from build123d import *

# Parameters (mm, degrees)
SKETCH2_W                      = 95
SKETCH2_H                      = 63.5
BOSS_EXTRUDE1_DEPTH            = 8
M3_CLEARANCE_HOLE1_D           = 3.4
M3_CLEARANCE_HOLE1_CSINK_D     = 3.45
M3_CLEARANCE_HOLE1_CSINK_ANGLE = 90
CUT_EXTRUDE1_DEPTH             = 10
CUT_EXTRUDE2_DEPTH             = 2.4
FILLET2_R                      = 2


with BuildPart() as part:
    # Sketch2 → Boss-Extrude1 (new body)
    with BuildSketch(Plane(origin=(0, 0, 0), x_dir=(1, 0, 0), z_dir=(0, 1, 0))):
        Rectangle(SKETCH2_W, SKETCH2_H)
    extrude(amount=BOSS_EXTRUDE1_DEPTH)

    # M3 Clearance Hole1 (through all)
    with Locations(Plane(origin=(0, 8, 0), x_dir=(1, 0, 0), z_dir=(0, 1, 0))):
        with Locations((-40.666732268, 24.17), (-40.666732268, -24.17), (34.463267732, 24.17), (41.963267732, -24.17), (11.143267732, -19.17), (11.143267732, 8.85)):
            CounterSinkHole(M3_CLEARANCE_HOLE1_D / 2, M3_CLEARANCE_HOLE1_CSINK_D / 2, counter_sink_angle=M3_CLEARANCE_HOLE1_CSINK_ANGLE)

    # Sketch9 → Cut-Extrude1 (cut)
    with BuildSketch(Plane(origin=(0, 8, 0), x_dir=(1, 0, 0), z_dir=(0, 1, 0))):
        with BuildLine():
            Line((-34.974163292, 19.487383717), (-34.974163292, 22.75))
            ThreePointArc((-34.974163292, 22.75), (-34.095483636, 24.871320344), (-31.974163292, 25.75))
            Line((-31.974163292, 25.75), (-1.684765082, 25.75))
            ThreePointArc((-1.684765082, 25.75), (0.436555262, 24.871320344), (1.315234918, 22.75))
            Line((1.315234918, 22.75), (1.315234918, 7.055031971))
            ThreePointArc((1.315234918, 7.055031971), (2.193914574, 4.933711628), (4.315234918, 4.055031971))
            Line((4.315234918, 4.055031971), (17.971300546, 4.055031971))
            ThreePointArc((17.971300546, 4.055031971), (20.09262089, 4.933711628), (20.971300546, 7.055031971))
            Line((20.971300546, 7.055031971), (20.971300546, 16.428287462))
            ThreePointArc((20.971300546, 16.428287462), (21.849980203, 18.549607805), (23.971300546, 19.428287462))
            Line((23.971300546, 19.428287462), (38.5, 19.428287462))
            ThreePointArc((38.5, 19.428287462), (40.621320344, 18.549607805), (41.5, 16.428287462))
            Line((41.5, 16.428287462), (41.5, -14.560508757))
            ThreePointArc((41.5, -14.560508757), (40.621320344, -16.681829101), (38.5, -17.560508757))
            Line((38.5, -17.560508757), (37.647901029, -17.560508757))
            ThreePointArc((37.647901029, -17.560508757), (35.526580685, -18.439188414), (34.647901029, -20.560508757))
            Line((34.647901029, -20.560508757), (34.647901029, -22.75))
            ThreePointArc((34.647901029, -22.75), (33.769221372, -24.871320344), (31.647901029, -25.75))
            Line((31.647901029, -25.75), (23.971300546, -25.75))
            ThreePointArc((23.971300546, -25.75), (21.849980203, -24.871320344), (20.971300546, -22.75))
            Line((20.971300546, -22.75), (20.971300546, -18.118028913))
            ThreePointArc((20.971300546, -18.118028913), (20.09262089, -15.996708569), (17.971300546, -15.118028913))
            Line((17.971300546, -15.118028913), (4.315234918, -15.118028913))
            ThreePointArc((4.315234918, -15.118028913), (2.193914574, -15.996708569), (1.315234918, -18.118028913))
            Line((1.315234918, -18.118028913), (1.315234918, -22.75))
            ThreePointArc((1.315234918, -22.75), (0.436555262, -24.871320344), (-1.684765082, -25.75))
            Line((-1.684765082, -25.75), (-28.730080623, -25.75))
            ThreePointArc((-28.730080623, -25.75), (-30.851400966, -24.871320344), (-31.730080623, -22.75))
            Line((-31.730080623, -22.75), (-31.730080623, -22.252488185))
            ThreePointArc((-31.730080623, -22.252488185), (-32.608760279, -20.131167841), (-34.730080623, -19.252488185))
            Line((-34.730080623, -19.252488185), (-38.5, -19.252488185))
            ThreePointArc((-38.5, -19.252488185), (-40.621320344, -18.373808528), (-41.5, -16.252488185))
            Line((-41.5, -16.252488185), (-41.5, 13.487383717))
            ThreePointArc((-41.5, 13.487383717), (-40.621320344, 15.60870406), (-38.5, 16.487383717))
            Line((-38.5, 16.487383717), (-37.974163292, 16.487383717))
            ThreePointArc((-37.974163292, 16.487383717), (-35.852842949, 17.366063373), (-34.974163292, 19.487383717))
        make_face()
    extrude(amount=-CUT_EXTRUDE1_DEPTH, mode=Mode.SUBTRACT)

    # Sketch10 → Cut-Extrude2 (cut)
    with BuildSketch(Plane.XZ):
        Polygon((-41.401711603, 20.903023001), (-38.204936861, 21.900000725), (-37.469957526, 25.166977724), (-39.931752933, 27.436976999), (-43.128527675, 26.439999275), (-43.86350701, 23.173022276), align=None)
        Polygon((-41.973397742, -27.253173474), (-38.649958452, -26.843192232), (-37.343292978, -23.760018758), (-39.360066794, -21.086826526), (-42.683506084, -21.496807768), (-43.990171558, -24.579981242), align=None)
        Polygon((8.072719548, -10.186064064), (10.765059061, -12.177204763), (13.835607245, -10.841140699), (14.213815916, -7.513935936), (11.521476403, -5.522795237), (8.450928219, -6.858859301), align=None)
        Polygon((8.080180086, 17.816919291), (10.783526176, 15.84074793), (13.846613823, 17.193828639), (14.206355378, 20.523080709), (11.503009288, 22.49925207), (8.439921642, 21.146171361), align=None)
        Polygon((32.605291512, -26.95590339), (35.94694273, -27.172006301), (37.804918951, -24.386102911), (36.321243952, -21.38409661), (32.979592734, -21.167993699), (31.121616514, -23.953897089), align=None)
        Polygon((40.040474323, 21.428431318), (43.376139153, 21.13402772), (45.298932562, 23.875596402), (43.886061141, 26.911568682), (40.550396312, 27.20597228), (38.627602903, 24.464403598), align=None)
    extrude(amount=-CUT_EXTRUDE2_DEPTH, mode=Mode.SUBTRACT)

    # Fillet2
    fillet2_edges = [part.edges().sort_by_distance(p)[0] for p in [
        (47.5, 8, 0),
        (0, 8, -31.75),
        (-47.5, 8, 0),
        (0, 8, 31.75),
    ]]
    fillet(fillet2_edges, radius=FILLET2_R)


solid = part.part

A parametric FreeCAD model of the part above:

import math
import FreeCAD as App
import Part
import Sketcher
Q = App.Units.Quantity


def edges_at(feature, points):
    """Names of the edges that pass closest to the given points."""
    edges = feature.Shape.Edges
    near = lambda p: min(range(len(edges)), key=lambda i: edges[i].distToShape(Part.Vertex(*p))[0])
    return sorted({f"Edge{near(p) + 1}" for p in points})

doc = App.newDocument("Part")
params = doc.addObject("Spreadsheet::Sheet", "Params")
for row, (alias, value) in enumerate([
    ("sketch1_width", "95 mm"),
    ("sketch1_height", "63.5 mm"),
    ("pad1_length", "8 mm"),
    ("sketch2_diameter", "3.4 mm"),
    ("hole_diameter", "3.4 mm"),
    ("hole_csink_diameter", "3.45 mm"),
    ("sketch3_radius", "3 mm"),
    ("pocket1_length", "10 mm"),
    ("pocket2_length", "2.4 mm"),
    ("fillet_radius", "2 mm"),
], start=1):
    params.set(f"A{row}", alias)
    params.set(f"B{row}", "=" + value)
    params.setAlias(f"B{row}", alias)

body = doc.addObject("PartDesign::Body", "Body")

# Sketch on XZ plane
sketch1 = doc.addObject("Sketcher::SketchObject", "Sketch")
body.addObject(sketch1)
sketch1.AttachmentSupport = (doc.XZ_Plane, [""])
sketch1.MapMode = "FlatFace"
sketch1.addGeometry(Part.LineSegment(App.Vector(-48, -32, 0), App.Vector(-48, 32, 0)), False)
sketch1.addGeometry(Part.LineSegment(App.Vector(-48, 32, 0), App.Vector(48, 32, 0)), False)
sketch1.addGeometry(Part.LineSegment(App.Vector(48, 32, 0), App.Vector(48, -32, 0)), False)
sketch1.addGeometry(Part.LineSegment(App.Vector(48, -32, 0), App.Vector(-48, -32, 0)), False)
sketch1.addConstraint(Sketcher.Constraint("Coincident", 0, 2, 1, 1))
sketch1.addConstraint(Sketcher.Constraint("Coincident", 1, 2, 2, 1))
sketch1.addConstraint(Sketcher.Constraint("Coincident", 2, 2, 3, 1))
sketch1.addConstraint(Sketcher.Constraint("Coincident", 3, 2, 0, 1))
sketch1.addConstraint(Sketcher.Constraint("Vertical", 0))
sketch1.addConstraint(Sketcher.Constraint("Horizontal", 1))
sketch1.addConstraint(Sketcher.Constraint("Vertical", 2))
sketch1.addConstraint(Sketcher.Constraint("Horizontal", 3))
sketch1.addConstraint(Sketcher.Constraint("Symmetric", 0, 2, 2, 2, -1, 1))
sketch1.addConstraint(Sketcher.Constraint("DistanceX", 1, 1, 1, 2, Q("95 mm")))
sketch1.addConstraint(Sketcher.Constraint("DistanceY", 0, 1, 0, 2, Q("63.5 mm")))
sketch1.setExpression("Constraints[9]", "Params.sketch1_width")
sketch1.setExpression("Constraints[10]", "Params.sketch1_height")
pad1 = doc.addObject("PartDesign::Pad", "Pad")
body.addObject(pad1)
pad1.Profile = sketch1
pad1.setExpression("Length", "Params.pad1_length")
pad1.Reversed = True

# Sketch on XZ plane
sketch2 = doc.addObject("Sketcher::SketchObject", "Sketch001")
body.addObject(sketch2)
sketch2.AttachmentSupport = (doc.XZ_Plane, [""])
sketch2.MapMode = "FlatFace"
sketch2.AttachmentOffset = App.Placement(App.Vector(0, 0, -8), App.Rotation())
sketch2.addGeometry(Part.Circle(App.Vector(-40.7, -24.2, 0), App.Vector(0, 0, 1), 1.7), False)
sketch2.addGeometry(Part.Circle(App.Vector(-40.7, 24.2, 0), App.Vector(0, 0, 1), 1.7), False)
sketch2.addGeometry(Part.Circle(App.Vector(34.5, -24.2, 0), App.Vector(0, 0, 1), 1.7), False)
sketch2.addGeometry(Part.Circle(App.Vector(42, 24.2, 0), App.Vector(0, 0, 1), 1.7), False)
sketch2.addGeometry(Part.Circle(App.Vector(11.1, 19.2, 0), App.Vector(0, 0, 1), 1.7), False)
sketch2.addGeometry(Part.Circle(App.Vector(11.1, -8.8, 0), App.Vector(0, 0, 1), 1.7), False)
sketch2.addConstraint(Sketcher.Constraint("Equal", 0, 1))
sketch2.addConstraint(Sketcher.Constraint("Equal", 1, 2))
sketch2.addConstraint(Sketcher.Constraint("Equal", 2, 3))
sketch2.addConstraint(Sketcher.Constraint("Equal", 3, 4))
sketch2.addConstraint(Sketcher.Constraint("Equal", 4, 5))
sketch2.addConstraint(Sketcher.Constraint("Symmetric", 0, 3, 1, 3, -1))
sketch2.addConstraint(Sketcher.Constraint("Horizontal", 0, 3, 2, 3))
sketch2.addConstraint(Sketcher.Constraint("Horizontal", 1, 3, 3, 3))
sketch2.addConstraint(Sketcher.Constraint("Vertical", 4, 3, 5, 3))
sketch2.addConstraint(Sketcher.Constraint("Diameter", 0, Q("3.4 mm")))
sketch2.addConstraint(Sketcher.Constraint("DistanceY", 4, 3, 3, 3, Q("5 mm")))
sketch2.addConstraint(Sketcher.Constraint("DistanceX", 2, 3, 3, 3, Q("7.5 mm")))
sketch2.addConstraint(Sketcher.Constraint("DistanceY", 0, 3, -1, 1, Q("24.17 mm")))
sketch2.addConstraint(Sketcher.Constraint("DistanceY", 5, 3, -1, 1, Q("8.85 mm")))
sketch2.addConstraint(Sketcher.Constraint("DistanceX", 0, 3, 2, 3, Q("75.13 mm")))
sketch2.addConstraint(Sketcher.Constraint("DistanceX", 4, 3, 3, 3, Q("30.82 mm")))
sketch2.addConstraint(Sketcher.Constraint("DistanceX", 0, 3, -1, 1, Q("40.666732 mm")))
sketch2.setExpression("Constraints[9]", "Params.sketch2_diameter")
doc.recompute()
hole = doc.addObject("PartDesign::Hole", "Hole")
body.addObject(hole)
hole.Profile = sketch2
hole.ThreadType = "None"
hole.setExpression("Diameter", "Params.hole_diameter")
hole.DepthType = "ThroughAll"
hole.HoleCutType = "Countersink"
hole.setExpression("HoleCutDiameter", "Params.hole_csink_diameter")
hole.HoleCutCountersinkAngle = 90
hole.Reversed = True

# Sketch on XZ plane
sketch3 = doc.addObject("Sketcher::SketchObject", "Sketch002")
body.addObject(sketch3)
sketch3.AttachmentSupport = (doc.XZ_Plane, [""])
sketch3.MapMode = "FlatFace"
sketch3.AttachmentOffset = App.Placement(App.Vector(0, 0, -8), App.Rotation())
sketch3.addGeometry(Part.LineSegment(App.Vector(-34.97, -22.75, 0), App.Vector(-34.97, -19.49, 0)), False)
sketch3.addGeometry(Part.ArcOfCircle(Part.Circle(App.Vector(-37.97, -19.49, 0), App.Vector(0, 0, 1), 3), math.radians(0), math.radians(90)), False)
sketch3.addGeometry(Part.LineSegment(App.Vector(-37.97, -16.49, 0), App.Vector(-38.5, -16.49, 0)), False)
sketch3.addGeometry(Part.ArcOfCircle(Part.Circle(App.Vector(-38.5, -13.49, 0), App.Vector(0, 0, 1), 3), math.radians(180), math.radians(270)), False)
sketch3.addGeometry(Part.LineSegment(App.Vector(-41.5, -13.49, 0), App.Vector(-41.5, 16.25, 0)), False)
sketch3.addGeometry(Part.ArcOfCircle(Part.Circle(App.Vector(-38.5, 16.25, 0), App.Vector(0, 0, 1), 3), math.radians(90), math.radians(180)), False)
sketch3.addGeometry(Part.LineSegment(App.Vector(-38.5, 19.25, 0), App.Vector(-34.73, 19.25, 0)), False)
sketch3.addGeometry(Part.ArcOfCircle(Part.Circle(App.Vector(-34.73, 22.25, 0), App.Vector(0, 0, 1), 3), math.radians(-90), math.radians(0)), False)
sketch3.addGeometry(Part.LineSegment(App.Vector(-31.73, 22.25, 0), App.Vector(-31.73, 22.75, 0)), False)
sketch3.addGeometry(Part.ArcOfCircle(Part.Circle(App.Vector(-28.73, 22.75, 0), App.Vector(0, 0, 1), 3), math.radians(90), math.radians(180)), False)
sketch3.addGeometry(Part.LineSegment(App.Vector(-28.73, 25.75, 0), App.Vector(-1.68, 25.75, 0)), False)
sketch3.addGeometry(Part.ArcOfCircle(Part.Circle(App.Vector(-1.68, 22.75, 0), App.Vector(0, 0, 1), 3), math.radians(0), math.radians(90)), False)
sketch3.addGeometry(Part.LineSegment(App.Vector(1.32, 22.75, 0), App.Vector(1.32, 18.12, 0)), False)
sketch3.addGeometry(Part.ArcOfCircle(Part.Circle(App.Vector(4.32, 18.12, 0), App.Vector(0, 0, 1), 3), math.radians(180), math.radians(270)), False)
sketch3.addGeometry(Part.LineSegment(App.Vector(4.32, 15.12, 0), App.Vector(17.97, 15.12, 0)), False)
sketch3.addGeometry(Part.ArcOfCircle(Part.Circle(App.Vector(17.97, 18.12, 0), App.Vector(0, 0, 1), 3), math.radians(-90), math.radians(0)), False)
sketch3.addGeometry(Part.LineSegment(App.Vector(20.97, 18.12, 0), App.Vector(20.97, 22.75, 0)), False)
sketch3.addGeometry(Part.ArcOfCircle(Part.Circle(App.Vector(23.97, 22.75, 0), App.Vector(0, 0, 1), 3), math.radians(90), math.radians(180)), False)
sketch3.addGeometry(Part.LineSegment(App.Vector(23.97, 25.75, 0), App.Vector(31.65, 25.75, 0)), False)
sketch3.addGeometry(Part.ArcOfCircle(Part.Circle(App.Vector(31.65, 22.75, 0), App.Vector(0, 0, 1), 3), math.radians(0), math.radians(90)), False)
sketch3.addGeometry(Part.LineSegment(App.Vector(34.65, 22.75, 0), App.Vector(34.65, 20.56, 0)), False)
sketch3.addGeometry(Part.ArcOfCircle(Part.Circle(App.Vector(37.65, 20.56, 0), App.Vector(0, 0, 1), 3), math.radians(180), math.radians(270)), False)
sketch3.addGeometry(Part.LineSegment(App.Vector(37.65, 17.56, 0), App.Vector(38.5, 17.56, 0)), False)
sketch3.addGeometry(Part.ArcOfCircle(Part.Circle(App.Vector(38.5, 14.56, 0), App.Vector(0, 0, 1), 3), math.radians(0), math.radians(90)), False)
sketch3.addGeometry(Part.LineSegment(App.Vector(41.5, 14.56, 0), App.Vector(41.5, -16.43, 0)), False)
sketch3.addGeometry(Part.ArcOfCircle(Part.Circle(App.Vector(38.5, -16.43, 0), App.Vector(0, 0, 1), 3), math.radians(-90), math.radians(0)), False)
sketch3.addGeometry(Part.LineSegment(App.Vector(38.5, -19.43, 0), App.Vector(23.97, -19.43, 0)), False)
sketch3.addGeometry(Part.ArcOfCircle(Part.Circle(App.Vector(23.97, -16.43, 0), App.Vector(0, 0, 1), 3), math.radians(-180), math.radians(-90)), False)
sketch3.addGeometry(Part.LineSegment(App.Vector(20.97, -16.43, 0), App.Vector(20.97, -7.06, 0)), False)
sketch3.addGeometry(Part.ArcOfCircle(Part.Circle(App.Vector(17.97, -7.06, 0), App.Vector(0, 0, 1), 3), math.radians(0), math.radians(90)), False)
sketch3.addGeometry(Part.LineSegment(App.Vector(17.97, -4.06, 0), App.Vector(4.32, -4.06, 0)), False)
sketch3.addGeometry(Part.ArcOfCircle(Part.Circle(App.Vector(4.32, -7.06, 0), App.Vector(0, 0, 1), 3), math.radians(90), math.radians(180)), False)
sketch3.addGeometry(Part.LineSegment(App.Vector(1.32, -7.06, 0), App.Vector(1.32, -22.75, 0)), False)
sketch3.addGeometry(Part.ArcOfCircle(Part.Circle(App.Vector(-1.68, -22.75, 0), App.Vector(0, 0, 1), 3), math.radians(-90), math.radians(0)), False)
sketch3.addGeometry(Part.LineSegment(App.Vector(-1.68, -25.75, 0), App.Vector(-31.97, -25.75, 0)), False)
sketch3.addGeometry(Part.ArcOfCircle(Part.Circle(App.Vector(-31.97, -22.75, 0), App.Vector(0, 0, 1), 3), math.radians(180), math.radians(270)), False)
sketch3.addConstraint(Sketcher.Constraint("Tangent", 0, 2, 1, 1))
sketch3.addConstraint(Sketcher.Constraint("Tangent", 1, 2, 2, 1))
sketch3.addConstraint(Sketcher.Constraint("Tangent", 2, 2, 3, 2))
sketch3.addConstraint(Sketcher.Constraint("Tangent", 3, 1, 4, 1))
sketch3.addConstraint(Sketcher.Constraint("Tangent", 4, 2, 5, 2))
sketch3.addConstraint(Sketcher.Constraint("Tangent", 5, 1, 6, 1))
sketch3.addConstraint(Sketcher.Constraint("Tangent", 6, 2, 7, 1))
sketch3.addConstraint(Sketcher.Constraint("Tangent", 7, 2, 8, 1))
sketch3.addConstraint(Sketcher.Constraint("Tangent", 8, 2, 9, 2))
sketch3.addConstraint(Sketcher.Constraint("Tangent", 9, 1, 10, 1))
sketch3.addConstraint(Sketcher.Constraint("Tangent", 10, 2, 11, 2))
sketch3.addConstraint(Sketcher.Constraint("Tangent", 11, 1, 12, 1))
sketch3.addConstraint(Sketcher.Constraint("Tangent", 12, 2, 13, 1))
sketch3.addConstraint(Sketcher.Constraint("Tangent", 13, 2, 14, 1))
sketch3.addConstraint(Sketcher.Constraint("Tangent", 14, 2, 15, 1))
sketch3.addConstraint(Sketcher.Constraint("Tangent", 15, 2, 16, 1))
sketch3.addConstraint(Sketcher.Constraint("Tangent", 16, 2, 17, 2))
sketch3.addConstraint(Sketcher.Constraint("Tangent", 17, 1, 18, 1))
sketch3.addConstraint(Sketcher.Constraint("Tangent", 18, 2, 19, 2))
sketch3.addConstraint(Sketcher.Constraint("Tangent", 19, 1, 20, 1))
sketch3.addConstraint(Sketcher.Constraint("Tangent", 20, 2, 21, 1))
sketch3.addConstraint(Sketcher.Constraint("Tangent", 21, 2, 22, 1))
sketch3.addConstraint(Sketcher.Constraint("Tangent", 22, 2, 23, 2))
sketch3.addConstraint(Sketcher.Constraint("Tangent", 23, 1, 24, 1))
sketch3.addConstraint(Sketcher.Constraint("Tangent", 24, 2, 25, 2))
sketch3.addConstraint(Sketcher.Constraint("Tangent", 25, 1, 26, 1))
sketch3.addConstraint(Sketcher.Constraint("Tangent", 26, 2, 27, 2))
sketch3.addConstraint(Sketcher.Constraint("Tangent", 27, 1, 28, 1))
sketch3.addConstraint(Sketcher.Constraint("Tangent", 28, 2, 29, 1))
sketch3.addConstraint(Sketcher.Constraint("Tangent", 29, 2, 30, 1))
sketch3.addConstraint(Sketcher.Constraint("Tangent", 30, 2, 31, 1))
sketch3.addConstraint(Sketcher.Constraint("Tangent", 31, 2, 32, 1))
sketch3.addConstraint(Sketcher.Constraint("Tangent", 32, 2, 33, 2))
sketch3.addConstraint(Sketcher.Constraint("Tangent", 33, 1, 34, 1))
sketch3.addConstraint(Sketcher.Constraint("Tangent", 34, 2, 35, 2))
sketch3.addConstraint(Sketcher.Constraint("Tangent", 35, 1, 0, 1))
sketch3.addConstraint(Sketcher.Constraint("Vertical", 0))
sketch3.addConstraint(Sketcher.Constraint("Horizontal", 2))
sketch3.addConstraint(Sketcher.Constraint("Vertical", 4))
sketch3.addConstraint(Sketcher.Constraint("Horizontal", 6))
sketch3.addConstraint(Sketcher.Constraint("Vertical", 8))
sketch3.addConstraint(Sketcher.Constraint("Horizontal", 10))
sketch3.addConstraint(Sketcher.Constraint("Vertical", 12))
sketch3.addConstraint(Sketcher.Constraint("Horizontal", 14))
sketch3.addConstraint(Sketcher.Constraint("Vertical", 16))
sketch3.addConstraint(Sketcher.Constraint("Horizontal", 18))
sketch3.addConstraint(Sketcher.Constraint("Vertical", 20))
sketch3.addConstraint(Sketcher.Constraint("Horizontal", 22))
sketch3.addConstraint(Sketcher.Constraint("Vertical", 24))
sketch3.addConstraint(Sketcher.Constraint("Horizontal", 26))
sketch3.addConstraint(Sketcher.Constraint("Vertical", 28))
sketch3.addConstraint(Sketcher.Constraint("Horizontal", 30))
sketch3.addConstraint(Sketcher.Constraint("Vertical", 32))
sketch3.addConstraint(Sketcher.Constraint("Horizontal", 34))
sketch3.addConstraint(Sketcher.Constraint("Equal", 1, 3))
sketch3.addConstraint(Sketcher.Constraint("Equal", 3, 5))
sketch3.addConstraint(Sketcher.Constraint("Equal", 5, 7))
sketch3.addConstraint(Sketcher.Constraint("Equal", 7, 9))
sketch3.addConstraint(Sketcher.Constraint("Equal", 9, 11))
sketch3.addConstraint(Sketcher.Constraint("Equal", 11, 13))
sketch3.addConstraint(Sketcher.Constraint("Equal", 13, 15))
sketch3.addConstraint(Sketcher.Constraint("Equal", 15, 17))
sketch3.addConstraint(Sketcher.Constraint("Equal", 17, 19))
sketch3.addConstraint(Sketcher.Constraint("Equal", 19, 21))
sketch3.addConstraint(Sketcher.Constraint("Equal", 21, 23))
sketch3.addConstraint(Sketcher.Constraint("Equal", 23, 25))
sketch3.addConstraint(Sketcher.Constraint("Equal", 25, 27))
sketch3.addConstraint(Sketcher.Constraint("Equal", 27, 29))
sketch3.addConstraint(Sketcher.Constraint("Equal", 29, 31))
sketch3.addConstraint(Sketcher.Constraint("Equal", 31, 33))
sketch3.addConstraint(Sketcher.Constraint("Equal", 33, 35))
sketch3.addConstraint(Sketcher.Constraint("Symmetric", 11, 3, 33, 3, -1))
sketch3.addConstraint(Sketcher.Constraint("Horizontal", 11, 3, 17, 3))
sketch3.addConstraint(Sketcher.Constraint("Vertical", 17, 3, 27, 3))
sketch3.addConstraint(Sketcher.Constraint("Radius", 1, Q("3 mm")))
sketch3.addConstraint(Sketcher.Constraint("DistanceX", 3, 3, -1, 1, Q("38.5 mm")))
sketch3.addConstraint(Sketcher.Constraint("DistanceX", -1, 1, 23, 3, Q("38.5 mm")))
sketch3.addConstraint(Sketcher.Constraint("DistanceY", -1, 1, 9, 3, Q("22.75 mm")))
sketch3.addConstraint(Sketcher.Constraint("DistanceX", 18, 1, 18, 2, Q("7.6766 mm")))
sketch3.addConstraint(Sketcher.Constraint("DistanceX", 22, 1, 22, 2, Q("0.852099 mm")))
sketch3.addConstraint(Sketcher.Constraint("DistanceX", 34, 2, 34, 1, Q("30.289398 mm")))
sketch3.addConstraint(Sketcher.Constraint("DistanceX", 6, 1, 6, 2, Q("3.769919 mm")))
sketch3.addConstraint(Sketcher.Constraint("DistanceY", 4, 1, 4, 2, Q("29.739872 mm")))
sketch3.addConstraint(Sketcher.Constraint("DistanceY", 8, 1, 8, 2, Q("0.497512 mm")))
sketch3.addConstraint(Sketcher.Constraint("DistanceY", 12, 2, 12, 1, Q("4.631971 mm")))
sketch3.addConstraint(Sketcher.Constraint("DistanceY", 20, 2, 20, 1, Q("2.189491 mm")))
sketch3.addConstraint(Sketcher.Constraint("DistanceY", 32, 2, 32, 1, Q("15.694968 mm")))
sketch3.addConstraint(Sketcher.Constraint("DistanceX", 2, 2, 2, 1, Q("0.525837 mm")))
sketch3.addConstraint(Sketcher.Constraint("DistanceY", 24, 2, 24, 1, Q("30.988796 mm")))
sketch3.setExpression("Constraints[74]", "Params.sketch3_radius")
pocket1 = doc.addObject("PartDesign::Pocket", "Pocket")
body.addObject(pocket1)
pocket1.Profile = sketch3
pocket1.setExpression("Length", "Params.pocket1_length")
pocket1.Reversed = True

# Sketch on XZ plane
sketch4 = doc.addObject("Sketcher::SketchObject", "Sketch003")
body.addObject(sketch4)
sketch4.AttachmentSupport = (doc.XZ_Plane, [""])
sketch4.MapMode = "FlatFace"
sketch4.addGeometry(Part.LineSegment(App.Vector(-41.4, 20.9, 0), App.Vector(-38.2, 21.9, 0)), False)
sketch4.addGeometry(Part.LineSegment(App.Vector(-38.2, 21.9, 0), App.Vector(-37.5, 25.2, 0)), False)
sketch4.addGeometry(Part.LineSegment(App.Vector(-37.5, 25.2, 0), App.Vector(-39.9, 27.4, 0)), False)
sketch4.addGeometry(Part.LineSegment(App.Vector(-39.9, 27.4, 0), App.Vector(-43.1, 26.4, 0)), False)
sketch4.addGeometry(Part.LineSegment(App.Vector(-43.1, 26.4, 0), App.Vector(-43.9, 23.2, 0)), False)
sketch4.addGeometry(Part.LineSegment(App.Vector(-43.9, 23.2, 0), App.Vector(-41.4, 20.9, 0)), False)
sketch4.addGeometry(Part.LineSegment(App.Vector(-42, -27.3, 0), App.Vector(-38.6, -26.8, 0)), False)
sketch4.addGeometry(Part.LineSegment(App.Vector(-38.6, -26.8, 0), App.Vector(-37.3, -23.8, 0)), False)
sketch4.addGeometry(Part.LineSegment(App.Vector(-37.3, -23.8, 0), App.Vector(-39.4, -21.1, 0)), False)
sketch4.addGeometry(Part.LineSegment(App.Vector(-39.4, -21.1, 0), App.Vector(-42.7, -21.5, 0)), False)
sketch4.addGeometry(Part.LineSegment(App.Vector(-42.7, -21.5, 0), App.Vector(-44, -24.6, 0)), False)
sketch4.addGeometry(Part.LineSegment(App.Vector(-44, -24.6, 0), App.Vector(-42, -27.3, 0)), False)
sketch4.addGeometry(Part.LineSegment(App.Vector(8.1, -10.2, 0), App.Vector(10.8, -12.2, 0)), False)
sketch4.addGeometry(Part.LineSegment(App.Vector(10.8, -12.2, 0), App.Vector(13.8, -10.8, 0)), False)
sketch4.addGeometry(Part.LineSegment(App.Vector(13.8, -10.8, 0), App.Vector(14.2, -7.5, 0)), False)
sketch4.addGeometry(Part.LineSegment(App.Vector(14.2, -7.5, 0), App.Vector(11.5, -5.5, 0)), False)
sketch4.addGeometry(Part.LineSegment(App.Vector(11.5, -5.5, 0), App.Vector(8.5, -6.9, 0)), False)
sketch4.addGeometry(Part.LineSegment(App.Vector(8.5, -6.9, 0), App.Vector(8.1, -10.2, 0)), False)
sketch4.addGeometry(Part.LineSegment(App.Vector(8.1, 17.8, 0), App.Vector(10.8, 15.8, 0)), False)
sketch4.addGeometry(Part.LineSegment(App.Vector(10.8, 15.8, 0), App.Vector(13.8, 17.2, 0)), False)
sketch4.addGeometry(Part.LineSegment(App.Vector(13.8, 17.2, 0), App.Vector(14.2, 20.5, 0)), False)
sketch4.addGeometry(Part.LineSegment(App.Vector(14.2, 20.5, 0), App.Vector(11.5, 22.5, 0)), False)
sketch4.addGeometry(Part.LineSegment(App.Vector(11.5, 22.5, 0), App.Vector(8.4, 21.1, 0)), False)
sketch4.addGeometry(Part.LineSegment(App.Vector(8.4, 21.1, 0), App.Vector(8.1, 17.8, 0)), False)
sketch4.addGeometry(Part.LineSegment(App.Vector(32.6, -27, 0), App.Vector(35.9, -27.2, 0)), False)
sketch4.addGeometry(Part.LineSegment(App.Vector(35.9, -27.2, 0), App.Vector(37.8, -24.4, 0)), False)
sketch4.addGeometry(Part.LineSegment(App.Vector(37.8, -24.4, 0), App.Vector(36.3, -21.4, 0)), False)
sketch4.addGeometry(Part.LineSegment(App.Vector(36.3, -21.4, 0), App.Vector(33, -21.2, 0)), False)
sketch4.addGeometry(Part.LineSegment(App.Vector(33, -21.2, 0), App.Vector(31.1, -24, 0)), False)
sketch4.addGeometry(Part.LineSegment(App.Vector(31.1, -24, 0), App.Vector(32.6, -27, 0)), False)
sketch4.addGeometry(Part.LineSegment(App.Vector(40, 21.4, 0), App.Vector(43.4, 21.1, 0)), False)
sketch4.addGeometry(Part.LineSegment(App.Vector(43.4, 21.1, 0), App.Vector(45.3, 23.9, 0)), False)
sketch4.addGeometry(Part.LineSegment(App.Vector(45.3, 23.9, 0), App.Vector(43.9, 26.9, 0)), False)
sketch4.addGeometry(Part.LineSegment(App.Vector(43.9, 26.9, 0), App.Vector(40.6, 27.2, 0)), False)
sketch4.addGeometry(Part.LineSegment(App.Vector(40.6, 27.2, 0), App.Vector(38.6, 24.5, 0)), False)
sketch4.addGeometry(Part.LineSegment(App.Vector(38.6, 24.5, 0), App.Vector(40, 21.4, 0)), False)
sketch4.addConstraint(Sketcher.Constraint("Coincident", 0, 2, 1, 1))
sketch4.addConstraint(Sketcher.Constraint("Coincident", 1, 2, 2, 1))
sketch4.addConstraint(Sketcher.Constraint("Coincident", 2, 2, 3, 1))
sketch4.addConstraint(Sketcher.Constraint("Coincident", 3, 2, 4, 1))
sketch4.addConstraint(Sketcher.Constraint("Coincident", 4, 2, 5, 1))
sketch4.addConstraint(Sketcher.Constraint("Coincident", 5, 2, 0, 1))
sketch4.addConstraint(Sketcher.Constraint("Coincident", 6, 2, 7, 1))
sketch4.addConstraint(Sketcher.Constraint("Coincident", 7, 2, 8, 1))
sketch4.addConstraint(Sketcher.Constraint("Coincident", 8, 2, 9, 1))
sketch4.addConstraint(Sketcher.Constraint("Coincident", 9, 2, 10, 1))
sketch4.addConstraint(Sketcher.Constraint("Coincident", 10, 2, 11, 1))
sketch4.addConstraint(Sketcher.Constraint("Coincident", 11, 2, 6, 1))
sketch4.addConstraint(Sketcher.Constraint("Coincident", 12, 2, 13, 1))
sketch4.addConstraint(Sketcher.Constraint("Coincident", 13, 2, 14, 1))
sketch4.addConstraint(Sketcher.Constraint("Coincident", 14, 2, 15, 1))
sketch4.addConstraint(Sketcher.Constraint("Coincident", 15, 2, 16, 1))
sketch4.addConstraint(Sketcher.Constraint("Coincident", 16, 2, 17, 1))
sketch4.addConstraint(Sketcher.Constraint("Coincident", 17, 2, 12, 1))
sketch4.addConstraint(Sketcher.Constraint("Coincident", 18, 2, 19, 1))
sketch4.addConstraint(Sketcher.Constraint("Coincident", 19, 2, 20, 1))
sketch4.addConstraint(Sketcher.Constraint("Coincident", 20, 2, 21, 1))
sketch4.addConstraint(Sketcher.Constraint("Coincident", 21, 2, 22, 1))
sketch4.addConstraint(Sketcher.Constraint("Coincident", 22, 2, 23, 1))
sketch4.addConstraint(Sketcher.Constraint("Coincident", 23, 2, 18, 1))
sketch4.addConstraint(Sketcher.Constraint("Coincident", 24, 2, 25, 1))
sketch4.addConstraint(Sketcher.Constraint("Coincident", 25, 2, 26, 1))
sketch4.addConstraint(Sketcher.Constraint("Coincident", 26, 2, 27, 1))
sketch4.addConstraint(Sketcher.Constraint("Coincident", 27, 2, 28, 1))
sketch4.addConstraint(Sketcher.Constraint("Coincident", 28, 2, 29, 1))
sketch4.addConstraint(Sketcher.Constraint("Coincident", 29, 2, 24, 1))
sketch4.addConstraint(Sketcher.Constraint("Coincident", 30, 2, 31, 1))
sketch4.addConstraint(Sketcher.Constraint("Coincident", 31, 2, 32, 1))
sketch4.addConstraint(Sketcher.Constraint("Coincident", 32, 2, 33, 1))
sketch4.addConstraint(Sketcher.Constraint("Coincident", 33, 2, 34, 1))
sketch4.addConstraint(Sketcher.Constraint("Coincident", 34, 2, 35, 1))
sketch4.addConstraint(Sketcher.Constraint("Coincident", 35, 2, 30, 1))
sketch4.addConstraint(Sketcher.Constraint("Parallel", 0, 3))
sketch4.addConstraint(Sketcher.Constraint("Parallel", 1, 4))
sketch4.addConstraint(Sketcher.Constraint("Parallel", 2, 5))
sketch4.addConstraint(Sketcher.Constraint("Parallel", 6, 9))
sketch4.addConstraint(Sketcher.Constraint("Parallel", 7, 10))
sketch4.addConstraint(Sketcher.Constraint("Parallel", 8, 11))
sketch4.addConstraint(Sketcher.Constraint("Parallel", 12, 15))
sketch4.addConstraint(Sketcher.Constraint("Parallel", 13, 16))
sketch4.addConstraint(Sketcher.Constraint("Parallel", 14, 17))
sketch4.addConstraint(Sketcher.Constraint("Parallel", 18, 21))
sketch4.addConstraint(Sketcher.Constraint("Parallel", 19, 22))
sketch4.addConstraint(Sketcher.Constraint("Parallel", 20, 23))
sketch4.addConstraint(Sketcher.Constraint("Parallel", 24, 27))
sketch4.addConstraint(Sketcher.Constraint("Parallel", 25, 28))
sketch4.addConstraint(Sketcher.Constraint("Parallel", 26, 29))
sketch4.addConstraint(Sketcher.Constraint("Parallel", 30, 33))
sketch4.addConstraint(Sketcher.Constraint("Parallel", 31, 34))
sketch4.addConstraint(Sketcher.Constraint("Parallel", 32, 35))
sketch4.addConstraint(Sketcher.Constraint("Equal", 0, 1))
sketch4.addConstraint(Sketcher.Constraint("Equal", 1, 2))
sketch4.addConstraint(Sketcher.Constraint("Equal", 2, 3))
sketch4.addConstraint(Sketcher.Constraint("Equal", 5, 6))
sketch4.addConstraint(Sketcher.Constraint("Equal", 6, 7))
sketch4.addConstraint(Sketcher.Constraint("Equal", 7, 8))
sketch4.addConstraint(Sketcher.Constraint("Equal", 8, 9))
sketch4.addConstraint(Sketcher.Constraint("Equal", 11, 12))
sketch4.addConstraint(Sketcher.Constraint("Equal", 12, 13))
sketch4.addConstraint(Sketcher.Constraint("Equal", 13, 14))
sketch4.addConstraint(Sketcher.Constraint("Equal", 14, 15))
sketch4.addConstraint(Sketcher.Constraint("Equal", 17, 18))
sketch4.addConstraint(Sketcher.Constraint("Equal", 18, 19))
sketch4.addConstraint(Sketcher.Constraint("Equal", 19, 20))
sketch4.addConstraint(Sketcher.Constraint("Equal", 20, 21))
sketch4.addConstraint(Sketcher.Constraint("Equal", 23, 24))
sketch4.addConstraint(Sketcher.Constraint("Equal", 24, 25))
sketch4.addConstraint(Sketcher.Constraint("Equal", 25, 26))
sketch4.addConstraint(Sketcher.Constraint("Equal", 26, 27))
sketch4.addConstraint(Sketcher.Constraint("Equal", 29, 30))
sketch4.addConstraint(Sketcher.Constraint("Equal", 30, 31))
sketch4.addConstraint(Sketcher.Constraint("Equal", 31, 32))
sketch4.addConstraint(Sketcher.Constraint("Equal", 32, 33))
sketch4.addConstraint(Sketcher.Constraint("DistanceY", -1, 1, 0, 2, Q("21.900001 mm")))
sketch4.addConstraint(Sketcher.Constraint("DistanceY", -1, 1, 3, 2, Q("26.439999 mm")))
sketch4.addConstraint(Sketcher.Constraint("DistanceY", 1, 2, 2, 2, Q("2.269999 mm")))
sketch4.addConstraint(Sketcher.Constraint("DistanceX", 6, 2, 1, 2, Q("1.180001 mm")))
sketch4.addConstraint(Sketcher.Constraint("DistanceX", 7, 2, 13, 2, Q("51.1789 mm")))
sketch4.addConstraint(Sketcher.Constraint("DistanceY", 24, 2, 12, 2, Q("14.994802 mm")))
sketch4.addConstraint(Sketcher.Constraint("DistanceY", 25, 2, 12, 2, Q("12.208898 mm")))
sketch4.addConstraint(Sketcher.Constraint("DistanceX", 24, 2, 26, 2, Q("0.374301 mm")))
sketch4.addConstraint(Sketcher.Constraint("DistanceY", 28, 2, 26, 2, Q("2.5698 mm")))
sketch4.addConstraint(Sketcher.Constraint("DistanceY", 19, 2, 30, 2, Q("3.940199 mm")))
sketch4.addConstraint(Sketcher.Constraint("Distance", 0, Q("3.348632 mm")))
sketch4.addConstraint(Sketcher.Constraint("DistanceX", 5, 2, -1, 1, Q("41.401712 mm")))
sketch4.addConstraint(Sketcher.Constraint("DistanceX", 6, 2, -1, 1, Q("38.649958 mm")))
sketch4.addConstraint(Sketcher.Constraint("DistanceY", 7, 2, -1, 1, Q("23.760019 mm")))
sketch4.addConstraint(Sketcher.Constraint("DistanceX", 10, 2, -1, 1, Q("43.990172 mm")))
sketch4.addConstraint(Sketcher.Constraint("DistanceY", 10, 2, -1, 1, Q("24.579981 mm")))
sketch4.addConstraint(Sketcher.Constraint("DistanceX", -1, 1, 12, 2, Q("10.765059 mm")))
sketch4.addConstraint(Sketcher.Constraint("DistanceY", 13, 2, -1, 1, Q("10.841141 mm")))
sketch4.addConstraint(Sketcher.Constraint("DistanceX", -1, 1, 16, 2, Q("8.450928 mm")))
sketch4.addConstraint(Sketcher.Constraint("DistanceY", 16, 2, -1, 1, Q("6.858859 mm")))
sketch4.addConstraint(Sketcher.Constraint("DistanceX", -1, 1, 17, 2, Q("8.07272 mm")))
sketch4.addConstraint(Sketcher.Constraint("DistanceY", -1, 1, 19, 2, Q("17.193829 mm")))
sketch4.addConstraint(Sketcher.Constraint("DistanceY", -1, 1, 20, 2, Q("20.523081 mm")))
sketch4.addConstraint(Sketcher.Constraint("DistanceX", -1, 1, 21, 2, Q("11.503009 mm")))
sketch4.addConstraint(Sketcher.Constraint("DistanceX", -1, 1, 22, 2, Q("8.439922 mm")))
sketch4.addConstraint(Sketcher.Constraint("DistanceY", -1, 1, 22, 2, Q("21.146171 mm")))
sketch4.addConstraint(Sketcher.Constraint("DistanceX", -1, 1, 25, 2, Q("37.804919 mm")))
sketch4.addConstraint(Sketcher.Constraint("DistanceX", -1, 1, 30, 2, Q("43.376139 mm")))
sketch4.addConstraint(Sketcher.Constraint("DistanceX", -1, 1, 32, 2, Q("43.886061 mm")))
sketch4.addConstraint(Sketcher.Constraint("DistanceY", -1, 1, 32, 2, Q("26.911569 mm")))
sketch4.addConstraint(Sketcher.Constraint("DistanceY", -1, 1, 35, 2, Q("21.428431 mm")))
pocket2 = doc.addObject("PartDesign::Pocket", "Pocket001")
body.addObject(pocket2)
pocket2.Profile = sketch4
pocket2.setExpression("Length", "Params.pocket2_length")
doc.recompute()

fillet = doc.addObject("PartDesign::Fillet", "Fillet")
body.addObject(fillet)
fillet.Base = (pocket2, edges_at(pocket2, [
    (47.5, 8, 0),
    (0, 8, -31.75),
    (-47.5, 8, 0),
    (0, 8, 31.75),
]))
fillet.setExpression("Radius", "Params.fillet_radius")

doc.recompute()
